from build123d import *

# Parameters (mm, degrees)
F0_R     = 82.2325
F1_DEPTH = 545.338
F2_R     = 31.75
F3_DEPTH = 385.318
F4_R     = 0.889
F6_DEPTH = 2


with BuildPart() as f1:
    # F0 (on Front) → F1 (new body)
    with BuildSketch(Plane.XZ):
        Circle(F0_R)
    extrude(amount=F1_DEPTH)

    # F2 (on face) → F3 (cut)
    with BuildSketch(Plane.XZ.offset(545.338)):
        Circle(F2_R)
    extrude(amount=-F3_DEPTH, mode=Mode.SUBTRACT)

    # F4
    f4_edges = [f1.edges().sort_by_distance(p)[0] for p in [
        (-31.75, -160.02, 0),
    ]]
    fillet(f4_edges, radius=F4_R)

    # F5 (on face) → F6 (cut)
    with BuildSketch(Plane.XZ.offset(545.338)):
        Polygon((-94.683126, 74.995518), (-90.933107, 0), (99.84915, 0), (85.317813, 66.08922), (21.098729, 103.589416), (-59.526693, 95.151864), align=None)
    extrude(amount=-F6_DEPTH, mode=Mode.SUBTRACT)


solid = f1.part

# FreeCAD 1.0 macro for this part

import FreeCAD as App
import Part
import Sketcher

V = App.Vector
Q = App.Units.Quantity


def edges_at(feature, points):
    """Names of the edges that pass closest to the given points."""
    edges = feature.Shape.Edges
    near = lambda p: min(range(len(edges)), key=lambda i: edges[i].distToShape(Part.Vertex(*p))[0])
    return sorted({f"Edge{near(p) + 1}" for p in points})

doc = App.newDocument("Part")
body = doc.addObject("PartDesign::Body", "Body")

# Sketch on XZ plane
sketch1 = body.newObject("Sketcher::SketchObject", "Sketch")
sketch1.AttachmentSupport = (doc.getObject("XZ_Plane"), [""])
sketch1.MapMode = "FlatFace"
sketch1.addGeometry(Part.Circle(V(0, 0, 0), V(0, 0, 1), 82.2325), False)
sketch1.addConstraint(Sketcher.Constraint("Coincident", 0, 3, -1, 1))
sketch1.addConstraint(Sketcher.Constraint("Diameter", 0, Q("6.475 in")))
pad1 = body.newObject("PartDesign::Pad", "Pad")
pad1.Profile = sketch1
pad1.Length = Q("21.47 in")

# Sketch on XZ plane
sketch2 = body.newObject("Sketcher::SketchObject", "Sketch001")
sketch2.AttachmentSupport = (doc.getObject("XZ_Plane"), [""])
sketch2.MapMode = "FlatFace"
sketch2.AttachmentOffset = App.Placement(V(0, 0, 21.47 * 25.4), App.Rotation())
sketch2.addGeometry(Part.Circle(V(0, 0, 0), V(0, 0, 1), 31.75), False)
sketch2.addConstraint(Sketcher.Constraint("Coincident", 0, 3, -1, 1))
sketch2.addConstraint(Sketcher.Constraint("Diameter", 0, Q("2.5 in")))
pocket1 = body.newObject("PartDesign::Pocket", "Pocket")
pocket1.Profile = sketch2
pocket1.Length = Q("15.17 in")
doc.recompute()

fillet = body.newObject("PartDesign::Fillet", "Fillet")
fillet.Base = (pocket1, edges_at(pocket1, [(-31.75, -160.02, 0)]))
fillet.Radius = Q("0.035 in")

# Sketch on XZ plane
sketch3 = body.newObject("Sketcher::SketchObject", "Sketch002")
sketch3.AttachmentSupport = (doc.getObject("XZ_Plane"), [""])
sketch3.MapMode = "FlatFace"
sketch3.AttachmentOffset = App.Placement(V(0, 0, 21.47 * 25.4), App.Rotation())
sketch3.addGeometry(Part.LineSegment(V(-94.683126, 74.995518, 0), V(-90.933107, 0, 0)), False)
sketch3.addGeometry(Part.LineSegment(V(-90.933107, 0, 0), V(99.84915, 0, 0)), False)
sketch3.addGeometry(Part.LineSegment(V(99.84915, 0, 0), V(85.317813, 66.08922, 0)), False)
sketch3.addGeometry(Part.LineSegment(V(85.317813, 66.08922, 0), V(21.098729, 103.589416, 0)), False)
sketch3.addGeometry(Part.LineSegment(V(21.098729, 103.589416, 0), V(-59.526693, 95.151864, 0)), False)
sketch3.addGeometry(Part.LineSegment(V(-59.526693, 95.151864, 0), V(-94.683126, 74.995518, 0)), False)
sketch3.addConstraint(Sketcher.Constraint("Coincident", 0, 2, 1, 1))
sketch3.addConstraint(Sketcher.Constraint("Coincident", 1, 2, 2, 1))
sketch3.addConstraint(Sketcher.Constraint("Coincident", 2, 2, 3, 1))
sketch3.addConstraint(Sketcher.Constraint("Coincident", 3, 2, 4, 1))
sketch3.addConstraint(Sketcher.Constraint("Coincident", 4, 2, 5, 1))
sketch3.addConstraint(Sketcher.Constraint("Coincident", 5, 2, 0, 1))
sketch3.addConstraint(Sketcher.Constraint("Horizontal", 1))
sketch3.addConstraint(Sketcher.Constraint("PointOnObject", 0, 2, -1))
sketch3.addConstraint(Sketcher.Constraint("DistanceX", 2, 2, 1, 2, Q("0.5720999 in")))
sketch3.addConstraint(Sketcher.Constraint("Distance", 2, 67.6679))
sketch3.addConstraint(Sketcher.Constraint("DistanceY", 2, 2, 5, 2, 8.906298))
sketch3.addConstraint(Sketcher.Constraint("Distance", 3, 74.36636))
sketch3.addConstraint(Sketcher.Constraint("Distance", 4, 81.06572))
sketch3.addConstraint(Sketcher.Constraint("Distance", 5, 40.524722))
sketch3.addConstraint(Sketcher.Constraint("DistanceX", 1, 1, 1, 2, 190.782257))
sketch3.addConstraint(Sketcher.Constraint("DistanceX", -1, 1, 1, 2, 99.84915))
sketch3.addConstraint(Sketcher.Constraint("DistanceX", -1, 1, 3, 2, 21.098729))
sketch3.addConstraint(Sketcher.Constraint("DistanceX", 4, 2, 3, 2, 80.625422))
pocket2 = body.newObject("PartDesign::Pocket", "Pocket001")
pocket2.Profile = sketch3
pocket2.Length = 2

doc.recompute()
